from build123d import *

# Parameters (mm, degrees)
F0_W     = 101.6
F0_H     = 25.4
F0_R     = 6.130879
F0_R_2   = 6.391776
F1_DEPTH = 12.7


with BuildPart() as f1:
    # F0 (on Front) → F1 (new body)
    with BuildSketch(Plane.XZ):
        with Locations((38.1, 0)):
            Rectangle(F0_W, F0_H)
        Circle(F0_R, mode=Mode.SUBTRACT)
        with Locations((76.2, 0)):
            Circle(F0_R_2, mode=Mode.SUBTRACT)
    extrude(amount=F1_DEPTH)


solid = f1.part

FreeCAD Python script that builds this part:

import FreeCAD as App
import Part
import Sketcher
Q = App.Units.Quantity


def add_polygon(sketch, points):
    """Adds a closed chain of lines whose ends are joined by coincident constraints."""
    first, n = sketch.GeometryCount, len(points)
    for a, b in zip(points, points[1:] + points[:1]):
        sketch.addGeometry(Part.LineSegment(App.Vector(*a, 0), App.Vector(*b, 0)), False)
    for i in range(n):
        sketch.addConstraint(Sketcher.Constraint("Coincident", first + i, 2, first + (i + 1) % n, 1))

doc = App.newDocument("Part")
body = doc.addObject("PartDesign::Body", "Body")

# Sketch on XZ plane
sketch1 = body.newObject("Sketcher::SketchObject", "Sketch")
sketch1.AttachmentSupport = (doc.getObject("XZ_Plane"), [""])
sketch1.MapMode = "FlatFace"
add_polygon(sketch1, [(-13, 13), (-13, -13), (89, -13), (89, 13)])  # lines 0-3
sketch1.addGeometry(Part.Circle(App.Vector(0, 0, 0), App.Vector(0, 0, 1), 6), False)  # 4
sketch1.addGeometry(Part.Circle(App.Vector(76, 0, 0), App.Vector(0, 0, 1), 6), False)  # 5
sketch1.addConstraint([
    Sketcher.Constraint("Vertical", 0),
    Sketcher.Constraint("Horizontal", 1),
    Sketcher.Constraint("Vertical", 2),
    Sketcher.Constraint("Horizontal", 3),
    Sketcher.Constraint("Coincident", 4, 3, -1, 1),
    Sketcher.Constraint("PointOnObject", 5, 3, -1),
    Sketcher.Constraint("DistanceX", 1, 1, 1, 2, Q("4 in")),
    Sketcher.Constraint("DistanceY", 0, 2, 0, 1, Q("1 in")),
    Sketcher.Constraint("DistanceX", -1, 1, 5, 3, Q("3 in")),
    Sketcher.Constraint("DistanceX", 0, 2, -1, 1, Q("0.5 in")),
    Sketcher.Constraint("DistanceY", 0, 2, -1, 1, Q("0.5 in")),
    Sketcher.Constraint("Diameter", 4, 12.261758),
    Sketcher.Constraint("Diameter", 5, 12.783552),
])
pad1 = body.newObject("PartDesign::Pad", "Pad")
pad1.Profile = sketch1
pad1.Length = Q("0.5 in")

doc.recompute()
